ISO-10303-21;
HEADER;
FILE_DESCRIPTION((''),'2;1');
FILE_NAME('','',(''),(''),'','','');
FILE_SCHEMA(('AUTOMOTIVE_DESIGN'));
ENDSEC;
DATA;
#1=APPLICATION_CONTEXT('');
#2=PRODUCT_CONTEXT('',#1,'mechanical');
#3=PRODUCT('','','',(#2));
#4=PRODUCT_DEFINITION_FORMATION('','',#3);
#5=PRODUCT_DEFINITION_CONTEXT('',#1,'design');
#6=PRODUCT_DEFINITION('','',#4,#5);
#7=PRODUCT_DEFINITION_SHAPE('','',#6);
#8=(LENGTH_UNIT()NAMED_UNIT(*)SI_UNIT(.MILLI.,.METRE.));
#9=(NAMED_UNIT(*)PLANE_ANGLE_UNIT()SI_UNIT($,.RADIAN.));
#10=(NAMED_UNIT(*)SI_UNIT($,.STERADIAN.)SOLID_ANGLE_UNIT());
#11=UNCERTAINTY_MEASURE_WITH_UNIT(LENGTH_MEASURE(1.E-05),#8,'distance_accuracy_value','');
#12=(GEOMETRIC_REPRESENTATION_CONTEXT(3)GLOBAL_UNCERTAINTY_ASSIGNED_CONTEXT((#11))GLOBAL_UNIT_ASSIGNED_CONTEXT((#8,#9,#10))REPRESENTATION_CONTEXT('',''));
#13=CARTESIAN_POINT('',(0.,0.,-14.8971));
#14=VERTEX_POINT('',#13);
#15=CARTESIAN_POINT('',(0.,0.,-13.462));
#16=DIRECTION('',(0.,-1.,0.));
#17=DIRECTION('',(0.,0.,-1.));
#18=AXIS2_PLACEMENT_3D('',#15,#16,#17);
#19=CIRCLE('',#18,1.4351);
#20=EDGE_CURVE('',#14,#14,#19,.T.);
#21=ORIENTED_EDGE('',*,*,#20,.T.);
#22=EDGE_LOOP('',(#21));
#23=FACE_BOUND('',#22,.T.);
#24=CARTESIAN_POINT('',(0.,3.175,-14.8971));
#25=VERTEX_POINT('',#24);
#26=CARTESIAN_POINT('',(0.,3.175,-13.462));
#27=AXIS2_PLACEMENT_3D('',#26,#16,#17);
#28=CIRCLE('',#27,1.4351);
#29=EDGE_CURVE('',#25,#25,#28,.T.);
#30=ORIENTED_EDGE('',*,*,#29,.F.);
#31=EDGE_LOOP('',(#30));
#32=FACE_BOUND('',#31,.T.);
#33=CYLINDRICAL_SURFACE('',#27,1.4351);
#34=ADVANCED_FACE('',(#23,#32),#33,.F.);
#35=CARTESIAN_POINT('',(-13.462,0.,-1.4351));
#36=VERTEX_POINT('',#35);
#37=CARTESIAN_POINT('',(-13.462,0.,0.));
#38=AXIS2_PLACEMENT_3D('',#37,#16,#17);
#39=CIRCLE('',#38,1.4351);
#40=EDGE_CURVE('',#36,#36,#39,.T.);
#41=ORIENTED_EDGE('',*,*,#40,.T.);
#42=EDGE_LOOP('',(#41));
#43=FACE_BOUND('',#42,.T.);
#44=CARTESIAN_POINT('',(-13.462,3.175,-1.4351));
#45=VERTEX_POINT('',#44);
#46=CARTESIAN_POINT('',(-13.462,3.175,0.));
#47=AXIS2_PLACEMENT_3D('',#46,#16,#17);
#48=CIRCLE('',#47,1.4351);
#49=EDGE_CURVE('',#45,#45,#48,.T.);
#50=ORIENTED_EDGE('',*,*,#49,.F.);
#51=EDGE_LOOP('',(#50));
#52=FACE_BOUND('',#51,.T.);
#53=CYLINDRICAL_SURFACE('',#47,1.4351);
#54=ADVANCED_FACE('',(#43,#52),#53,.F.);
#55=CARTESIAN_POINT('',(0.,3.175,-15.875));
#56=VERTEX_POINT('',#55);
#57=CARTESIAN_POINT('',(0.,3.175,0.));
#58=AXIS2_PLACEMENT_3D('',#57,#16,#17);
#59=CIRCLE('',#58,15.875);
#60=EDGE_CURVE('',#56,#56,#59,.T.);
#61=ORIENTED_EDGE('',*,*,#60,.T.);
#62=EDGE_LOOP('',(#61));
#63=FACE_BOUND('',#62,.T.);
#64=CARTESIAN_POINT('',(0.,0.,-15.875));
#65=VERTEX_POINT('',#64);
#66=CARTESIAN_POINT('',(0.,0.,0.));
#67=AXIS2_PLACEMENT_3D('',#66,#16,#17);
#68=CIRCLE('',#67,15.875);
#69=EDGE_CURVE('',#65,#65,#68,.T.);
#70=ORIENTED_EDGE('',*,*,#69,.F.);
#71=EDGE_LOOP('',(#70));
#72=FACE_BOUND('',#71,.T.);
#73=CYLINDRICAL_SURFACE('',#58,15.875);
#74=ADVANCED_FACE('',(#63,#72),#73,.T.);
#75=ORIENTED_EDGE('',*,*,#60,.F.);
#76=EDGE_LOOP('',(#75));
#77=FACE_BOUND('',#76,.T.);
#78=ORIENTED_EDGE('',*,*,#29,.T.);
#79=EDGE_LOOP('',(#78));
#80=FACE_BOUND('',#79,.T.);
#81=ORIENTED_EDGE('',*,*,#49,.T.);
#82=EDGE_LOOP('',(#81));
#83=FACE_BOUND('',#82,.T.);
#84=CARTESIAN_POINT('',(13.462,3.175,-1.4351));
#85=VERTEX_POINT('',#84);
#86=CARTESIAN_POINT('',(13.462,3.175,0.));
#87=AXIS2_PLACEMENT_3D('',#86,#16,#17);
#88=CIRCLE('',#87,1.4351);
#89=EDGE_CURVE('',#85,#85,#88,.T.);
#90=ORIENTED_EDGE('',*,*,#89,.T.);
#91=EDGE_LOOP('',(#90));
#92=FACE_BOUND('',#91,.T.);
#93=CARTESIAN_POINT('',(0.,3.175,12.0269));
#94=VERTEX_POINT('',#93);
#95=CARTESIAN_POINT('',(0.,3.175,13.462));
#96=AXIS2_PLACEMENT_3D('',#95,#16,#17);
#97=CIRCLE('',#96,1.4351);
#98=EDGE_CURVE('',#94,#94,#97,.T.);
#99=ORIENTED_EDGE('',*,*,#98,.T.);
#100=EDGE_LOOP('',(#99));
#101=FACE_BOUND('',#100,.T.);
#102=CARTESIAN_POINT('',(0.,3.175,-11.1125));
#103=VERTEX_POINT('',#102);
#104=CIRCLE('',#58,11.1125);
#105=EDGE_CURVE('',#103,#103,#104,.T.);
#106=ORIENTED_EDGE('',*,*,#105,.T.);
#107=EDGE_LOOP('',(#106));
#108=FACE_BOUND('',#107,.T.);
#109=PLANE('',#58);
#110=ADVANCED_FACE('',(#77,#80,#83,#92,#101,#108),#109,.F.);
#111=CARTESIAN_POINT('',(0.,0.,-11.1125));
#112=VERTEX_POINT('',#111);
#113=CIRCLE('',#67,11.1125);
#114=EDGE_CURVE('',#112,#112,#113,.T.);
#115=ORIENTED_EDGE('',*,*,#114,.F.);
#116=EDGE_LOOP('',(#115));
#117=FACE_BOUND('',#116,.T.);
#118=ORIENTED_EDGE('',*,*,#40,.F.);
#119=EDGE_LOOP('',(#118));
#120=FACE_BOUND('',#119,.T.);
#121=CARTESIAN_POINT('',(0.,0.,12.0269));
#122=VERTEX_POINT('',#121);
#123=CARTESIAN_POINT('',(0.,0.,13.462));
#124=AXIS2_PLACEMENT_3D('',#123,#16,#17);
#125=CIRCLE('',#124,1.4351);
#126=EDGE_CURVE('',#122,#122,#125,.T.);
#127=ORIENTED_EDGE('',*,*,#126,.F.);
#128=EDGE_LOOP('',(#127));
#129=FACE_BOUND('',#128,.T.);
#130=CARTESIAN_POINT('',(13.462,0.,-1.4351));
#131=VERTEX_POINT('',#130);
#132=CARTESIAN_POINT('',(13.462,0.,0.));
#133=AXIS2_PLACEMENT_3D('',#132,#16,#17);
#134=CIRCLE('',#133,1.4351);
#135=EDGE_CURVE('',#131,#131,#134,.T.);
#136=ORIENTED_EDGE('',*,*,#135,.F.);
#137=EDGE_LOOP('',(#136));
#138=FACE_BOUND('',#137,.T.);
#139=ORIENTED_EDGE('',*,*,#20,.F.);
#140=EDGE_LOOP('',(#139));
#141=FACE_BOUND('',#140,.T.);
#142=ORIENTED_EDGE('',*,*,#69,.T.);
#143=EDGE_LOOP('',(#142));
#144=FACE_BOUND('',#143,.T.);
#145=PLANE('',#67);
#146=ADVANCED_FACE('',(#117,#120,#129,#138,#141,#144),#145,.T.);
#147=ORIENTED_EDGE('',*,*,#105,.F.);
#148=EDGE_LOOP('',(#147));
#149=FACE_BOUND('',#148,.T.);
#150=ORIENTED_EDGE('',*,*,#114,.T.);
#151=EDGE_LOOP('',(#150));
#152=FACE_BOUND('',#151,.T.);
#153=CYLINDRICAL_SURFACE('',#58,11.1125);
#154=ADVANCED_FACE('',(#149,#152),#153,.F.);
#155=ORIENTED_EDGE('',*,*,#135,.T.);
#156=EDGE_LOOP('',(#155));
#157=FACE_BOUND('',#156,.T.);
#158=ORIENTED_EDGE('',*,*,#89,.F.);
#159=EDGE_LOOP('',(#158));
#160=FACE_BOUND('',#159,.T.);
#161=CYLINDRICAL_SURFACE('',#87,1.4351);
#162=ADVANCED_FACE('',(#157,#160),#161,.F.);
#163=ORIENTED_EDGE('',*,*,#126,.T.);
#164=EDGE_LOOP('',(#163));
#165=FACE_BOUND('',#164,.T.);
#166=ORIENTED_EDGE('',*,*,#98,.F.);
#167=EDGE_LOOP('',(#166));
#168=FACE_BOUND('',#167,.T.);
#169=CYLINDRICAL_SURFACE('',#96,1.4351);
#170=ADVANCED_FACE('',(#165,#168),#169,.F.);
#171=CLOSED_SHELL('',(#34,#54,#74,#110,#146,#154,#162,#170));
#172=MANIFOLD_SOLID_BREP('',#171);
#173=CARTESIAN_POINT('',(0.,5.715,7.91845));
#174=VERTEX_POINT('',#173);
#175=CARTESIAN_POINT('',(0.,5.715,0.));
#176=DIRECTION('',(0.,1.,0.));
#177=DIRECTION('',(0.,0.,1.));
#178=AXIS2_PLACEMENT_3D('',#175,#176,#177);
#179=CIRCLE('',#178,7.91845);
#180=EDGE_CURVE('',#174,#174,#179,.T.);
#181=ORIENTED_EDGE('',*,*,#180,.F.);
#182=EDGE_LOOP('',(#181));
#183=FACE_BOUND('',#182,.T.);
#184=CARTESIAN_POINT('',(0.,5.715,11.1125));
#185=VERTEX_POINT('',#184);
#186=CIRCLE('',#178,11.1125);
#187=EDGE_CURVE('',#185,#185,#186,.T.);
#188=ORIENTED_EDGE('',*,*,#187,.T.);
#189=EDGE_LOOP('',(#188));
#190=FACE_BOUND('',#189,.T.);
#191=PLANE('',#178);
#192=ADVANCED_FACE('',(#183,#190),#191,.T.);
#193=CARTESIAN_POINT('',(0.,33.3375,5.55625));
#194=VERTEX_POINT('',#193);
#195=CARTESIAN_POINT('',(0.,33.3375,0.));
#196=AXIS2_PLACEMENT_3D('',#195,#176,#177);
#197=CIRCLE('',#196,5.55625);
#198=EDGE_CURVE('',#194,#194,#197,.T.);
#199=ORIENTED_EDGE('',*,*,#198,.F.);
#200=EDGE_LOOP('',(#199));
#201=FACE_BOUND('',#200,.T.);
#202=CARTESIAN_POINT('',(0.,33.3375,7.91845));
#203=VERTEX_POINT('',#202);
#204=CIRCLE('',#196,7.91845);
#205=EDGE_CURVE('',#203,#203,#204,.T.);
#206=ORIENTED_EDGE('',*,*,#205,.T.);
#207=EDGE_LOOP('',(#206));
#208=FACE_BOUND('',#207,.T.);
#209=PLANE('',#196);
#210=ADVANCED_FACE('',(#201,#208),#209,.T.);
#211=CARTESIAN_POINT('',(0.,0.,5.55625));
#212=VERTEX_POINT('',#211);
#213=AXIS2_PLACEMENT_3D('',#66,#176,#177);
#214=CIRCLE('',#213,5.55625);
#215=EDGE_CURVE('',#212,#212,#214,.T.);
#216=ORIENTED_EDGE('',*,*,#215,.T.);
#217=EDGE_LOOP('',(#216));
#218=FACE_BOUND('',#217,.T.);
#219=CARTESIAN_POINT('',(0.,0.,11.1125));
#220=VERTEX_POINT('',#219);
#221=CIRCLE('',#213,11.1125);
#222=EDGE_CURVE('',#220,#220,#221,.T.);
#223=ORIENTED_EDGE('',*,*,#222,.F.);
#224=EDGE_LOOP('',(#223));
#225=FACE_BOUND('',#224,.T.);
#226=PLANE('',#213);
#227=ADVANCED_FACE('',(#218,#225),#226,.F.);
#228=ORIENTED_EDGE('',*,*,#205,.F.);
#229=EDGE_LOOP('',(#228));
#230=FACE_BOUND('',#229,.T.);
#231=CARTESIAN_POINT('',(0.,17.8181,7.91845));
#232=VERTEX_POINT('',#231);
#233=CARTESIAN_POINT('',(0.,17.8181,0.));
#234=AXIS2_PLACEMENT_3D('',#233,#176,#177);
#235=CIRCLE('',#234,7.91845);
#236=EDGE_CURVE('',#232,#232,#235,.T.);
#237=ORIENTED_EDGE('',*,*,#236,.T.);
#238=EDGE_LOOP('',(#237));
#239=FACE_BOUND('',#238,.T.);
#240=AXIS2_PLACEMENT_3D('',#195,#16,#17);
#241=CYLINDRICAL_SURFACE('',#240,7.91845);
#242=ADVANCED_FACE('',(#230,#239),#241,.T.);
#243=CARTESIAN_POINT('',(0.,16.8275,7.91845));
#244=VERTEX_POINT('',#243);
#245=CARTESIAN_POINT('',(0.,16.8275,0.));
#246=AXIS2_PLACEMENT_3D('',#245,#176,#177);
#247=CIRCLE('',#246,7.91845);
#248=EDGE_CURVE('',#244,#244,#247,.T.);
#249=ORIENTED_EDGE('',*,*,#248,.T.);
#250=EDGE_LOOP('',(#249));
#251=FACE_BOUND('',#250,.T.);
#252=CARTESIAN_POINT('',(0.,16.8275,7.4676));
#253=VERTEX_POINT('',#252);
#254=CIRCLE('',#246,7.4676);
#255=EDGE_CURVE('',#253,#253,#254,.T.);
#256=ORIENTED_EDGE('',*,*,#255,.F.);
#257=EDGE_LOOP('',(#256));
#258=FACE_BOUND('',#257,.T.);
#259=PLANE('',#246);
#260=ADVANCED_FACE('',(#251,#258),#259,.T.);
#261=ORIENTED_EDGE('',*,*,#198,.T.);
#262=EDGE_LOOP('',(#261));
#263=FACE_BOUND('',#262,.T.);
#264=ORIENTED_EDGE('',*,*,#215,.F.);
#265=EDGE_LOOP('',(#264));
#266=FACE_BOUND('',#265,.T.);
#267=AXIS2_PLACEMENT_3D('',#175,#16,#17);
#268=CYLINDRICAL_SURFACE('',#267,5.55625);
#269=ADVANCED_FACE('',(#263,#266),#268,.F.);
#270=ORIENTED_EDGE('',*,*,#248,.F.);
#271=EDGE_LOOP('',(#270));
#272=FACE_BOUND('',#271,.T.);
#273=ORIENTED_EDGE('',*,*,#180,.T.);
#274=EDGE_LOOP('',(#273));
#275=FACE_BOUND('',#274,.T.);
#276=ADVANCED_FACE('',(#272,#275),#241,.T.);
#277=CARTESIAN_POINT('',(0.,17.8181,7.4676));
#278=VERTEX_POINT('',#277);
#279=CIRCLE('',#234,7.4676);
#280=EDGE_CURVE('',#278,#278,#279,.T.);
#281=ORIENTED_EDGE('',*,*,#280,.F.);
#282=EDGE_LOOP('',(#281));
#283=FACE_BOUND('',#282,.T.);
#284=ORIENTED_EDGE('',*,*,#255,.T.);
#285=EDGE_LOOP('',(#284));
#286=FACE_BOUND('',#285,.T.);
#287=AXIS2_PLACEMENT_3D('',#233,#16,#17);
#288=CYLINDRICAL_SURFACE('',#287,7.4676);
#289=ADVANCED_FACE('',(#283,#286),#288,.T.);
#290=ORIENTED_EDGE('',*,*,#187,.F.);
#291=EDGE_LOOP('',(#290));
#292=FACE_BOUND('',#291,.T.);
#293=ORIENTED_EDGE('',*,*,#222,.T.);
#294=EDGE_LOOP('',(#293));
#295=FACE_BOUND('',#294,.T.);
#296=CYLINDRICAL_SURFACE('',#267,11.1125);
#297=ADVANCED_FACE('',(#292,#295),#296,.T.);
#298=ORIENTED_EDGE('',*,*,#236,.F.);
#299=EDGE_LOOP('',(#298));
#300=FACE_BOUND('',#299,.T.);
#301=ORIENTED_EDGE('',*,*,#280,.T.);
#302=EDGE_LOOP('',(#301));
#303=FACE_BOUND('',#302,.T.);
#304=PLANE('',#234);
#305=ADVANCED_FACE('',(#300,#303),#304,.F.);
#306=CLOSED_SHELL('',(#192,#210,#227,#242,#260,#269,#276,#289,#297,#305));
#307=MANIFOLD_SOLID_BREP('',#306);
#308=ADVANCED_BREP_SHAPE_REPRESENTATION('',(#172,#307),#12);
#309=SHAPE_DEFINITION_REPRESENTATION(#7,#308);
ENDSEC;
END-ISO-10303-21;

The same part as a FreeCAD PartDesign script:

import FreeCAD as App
import Part
import Sketcher

V = App.Vector
Q = App.Units.Quantity

doc = App.newDocument("Part")
body = doc.addObject("PartDesign::Body", "Body")

# Sketch on XZ plane
sketch1 = body.newObject("Sketcher::SketchObject", "Sketch")
sketch1.AttachmentSupport = (doc.getObject("XZ_Plane"), [""])
sketch1.MapMode = "FlatFace"
sketch1.addGeometry([
    Part.Circle(V(0, 0, 0), V(0, 0, 1), 11),
    Part.Circle(V(0, 0, 0), V(0, 0, 1), 6),
], False)
sketch1.addConstraint([
    Sketcher.Constraint("Coincident", 0, 3, -1, 1),
    Sketcher.Constraint("Coincident", 1, 3, -1, 1),
    Sketcher.Constraint("Diameter", 0, Q("0.875 in")),
    Sketcher.Constraint("Diameter", 1, Q("0.4375 in")),
])
pad1 = body.newObject("PartDesign::Pad", "Pad")
pad1.Profile = sketch1
pad1.Length = Q("0.225 in")
pad1.Reversed = True

# Sketch on XZ plane
sketch2 = body.newObject("Sketcher::SketchObject", "Sketch001")
sketch2.AttachmentSupport = (doc.getObject("XZ_Plane"), [""])
sketch2.MapMode = "FlatFace"
sketch2.AttachmentOffset = App.Placement(V(0, 0, -0.225 * 25.4), App.Rotation())
sketch2.addGeometry([
    Part.Circle(V(0, 0, 0), V(0, 0, 1), 8),
    Part.Circle(V(0, 0, 0), V(0, 0, 1), 6),
], False)
sketch2.addConstraint([
    Sketcher.Constraint("Coincident", 0, 3, -1, 1),
    Sketcher.Constraint("Coincident", 1, 3, -1, 1),
    Sketcher.Constraint("Diameter", 1, Q("0.4375 in")),
    Sketcher.Constraint("Diameter", 0, Q("0.6235 in")),
])
pad2 = body.newObject("PartDesign::Pad", "Pad001")
pad2.Profile = sketch2
pad2.Length = Q("1.0875 in")
pad2.Reversed = True

# Sketch on XZ plane
sketch3 = body.newObject("Sketcher::SketchObject", "Sketch002")
sketch3.AttachmentSupport = (doc.getObject("XZ_Plane"), [""])
sketch3.MapMode = "FlatFace"
sketch3.AttachmentOffset = App.Placement(V(0, 0, -0.6625 * 25.4), App.Rotation())
sketch3.addGeometry([
    Part.LineSegment(V(17, 17, 0), V(17, -17, 0)),  # 0
    Part.LineSegment(V(17, -17, 0), V(-17, -17, 0)),  # 1
    Part.LineSegment(V(-17, -17, 0), V(-17, 17, 0)),  # 2
    Part.LineSegment(V(-17, 17, 0), V(17, 17, 0)),  # 3
    Part.Circle(V(0, 0, 0), V(0, 0, 1), 7),  # 4
], False)
sketch3.addConstraint([
    Sketcher.Constraint("Coincident", 0, 2, 1, 1),
    Sketcher.Constraint("Coincident", 1, 2, 2, 1),
    Sketcher.Constraint("Coincident", 2, 2, 3, 1),
    Sketcher.Constraint("Coincident", 3, 2, 0, 1),
    Sketcher.Constraint("Vertical", 0),
    Sketcher.Constraint("Horizontal", 1),
    Sketcher.Constraint("Vertical", 2),
    Sketcher.Constraint("Horizontal", 3),
    Sketcher.Constraint("Coincident", 4, 3, -1, 1),
    Sketcher.Constraint("Symmetric", 0, 2, 2, 2, -1, 1),
    Sketcher.Constraint("Equal", 3, 0),
    Sketcher.Constraint("Diameter", 4, Q("0.588 in")),
    Sketcher.Constraint("DistanceX", 1, 2, 1, 1, 33.388),
])
pocket1 = body.newObject("PartDesign::Pocket", "Pocket")
pocket1.Profile = sketch3
pocket1.Length = Q("0.039 in")
body2 = doc.addObject("PartDesign::Body", "Body001")

# Sketch on XZ plane
sketch4 = body2.newObject("Sketcher::SketchObject", "Sketch003")
sketch4.AttachmentSupport = (doc.getObject("XZ_Plane001"), [""])
sketch4.MapMode = "FlatFace"
sketch4.addGeometry([
    Part.Circle(V(0, 0, 0), V(0, 0, 1), 15.9),  # 0
    Part.Circle(V(0, -13.5, 0), V(0, 0, 1), 1.4),  # 1
    Part.Circle(V(-13.5, 0, 0), V(0, 0, 1), 1.4),  # 2
    Part.Circle(V(0, 0, 0), V(0, 0, 1), 11.1),  # 3
    Part.Circle(V(13.5, 0, 0), V(0, 0, 1), 1.4),  # 4
    Part.Circle(V(0, 13.5, 0), V(0, 0, 1), 1.4),  # 5
], False)
sketch4.addConstraint([
    Sketcher.Constraint("Coincident", 0, 3, -1, 1),
    Sketcher.Constraint("Coincident", 3, 3, -1, 1),
    Sketcher.Constraint("Equal", 1, 2),
    Sketcher.Constraint("Equal", 2, 4),
    Sketcher.Constraint("Equal", 4, 5),
    Sketcher.Constraint("Symmetric", 2, 3, 4, 3, -1, 1),
    Sketcher.Constraint("Symmetric", 1, 3, 5, 3, -1, 1),
    Sketcher.Constraint("PointOnObject", 1, 3, -2),
    Sketcher.Constraint("PointOnObject", 2, 3, -1),
    Sketcher.Constraint("Diameter", 0, Q("1.25 in")),
    Sketcher.Constraint("Diameter", 1, Q("0.113 in")),
    Sketcher.Constraint("Diameter", 3, Q("0.875 in")),
    Sketcher.Constraint("DistanceY", 1, 3, -1, 1, Q("0.53 in")),
    Sketcher.Constraint("DistanceX", 2, 3, -1, 1, Q("0.53 in")),
])
pad3 = body2.newObject("PartDesign::Pad", "Pad002")
pad3.Profile = sketch4
pad3.Length = Q("0.125 in")
pad3.Reversed = True

doc.recompute()
